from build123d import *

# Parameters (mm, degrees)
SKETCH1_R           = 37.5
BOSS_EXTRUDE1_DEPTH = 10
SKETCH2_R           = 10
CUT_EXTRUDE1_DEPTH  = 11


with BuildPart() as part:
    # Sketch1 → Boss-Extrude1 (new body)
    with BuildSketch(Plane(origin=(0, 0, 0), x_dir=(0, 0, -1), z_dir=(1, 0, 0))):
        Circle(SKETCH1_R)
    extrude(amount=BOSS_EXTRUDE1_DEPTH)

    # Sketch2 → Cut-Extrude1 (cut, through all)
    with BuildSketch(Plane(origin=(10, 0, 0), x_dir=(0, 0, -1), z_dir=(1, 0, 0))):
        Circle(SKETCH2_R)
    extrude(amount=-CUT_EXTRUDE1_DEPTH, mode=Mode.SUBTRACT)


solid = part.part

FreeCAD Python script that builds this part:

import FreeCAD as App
import Part
import Sketcher
from FreeCAD import Vector
Q = App.Units.Quantity

doc = App.newDocument("Part")
body = doc.addObject("PartDesign::Body", "Body")

sketch1 = body.newObject("Sketcher::SketchObject", "Sketch")
sketch1.AttachmentSupport = (doc.getObject("YZ_Plane"), [""])
sketch1.MapMode = "FlatFace"
sketch1.addGeometry(Part.Circle(Vector(0, 0, 0), Vector(0, 0, 1), 37.5), False)
sketch1.addConstraint([
    Sketcher.Constraint("Coincident", 0, 3, -1, 1),
    Sketcher.Constraint("Diameter", 0, Q("75 mm")),
])
pad1 = body.newObject("PartDesign::Pad", "Pad")
pad1.Profile = sketch1
pad1.Length = 10

sketch2 = body.newObject("Sketcher::SketchObject", "Sketch001")
sketch2.AttachmentSupport = (doc.getObject("YZ_Plane"), [""])
sketch2.MapMode = "FlatFace"
sketch2.AttachmentOffset = App.Placement(Vector(0, 0, 10), App.Rotation())
sketch2.addGeometry(Part.Circle(Vector(0, 0, 0), Vector(0, 0, 1), 10), False)
sketch2.addConstraint([
    Sketcher.Constraint("Coincident", 0, 3, -1, 1),
    Sketcher.Constraint("Diameter", 0, Q("20 mm")),
])
pocket1 = body.newObject("PartDesign::Pocket", "Pocket")
pocket1.Profile = sketch2
pocket1.Type = "ThroughAll"

doc.recompute()
